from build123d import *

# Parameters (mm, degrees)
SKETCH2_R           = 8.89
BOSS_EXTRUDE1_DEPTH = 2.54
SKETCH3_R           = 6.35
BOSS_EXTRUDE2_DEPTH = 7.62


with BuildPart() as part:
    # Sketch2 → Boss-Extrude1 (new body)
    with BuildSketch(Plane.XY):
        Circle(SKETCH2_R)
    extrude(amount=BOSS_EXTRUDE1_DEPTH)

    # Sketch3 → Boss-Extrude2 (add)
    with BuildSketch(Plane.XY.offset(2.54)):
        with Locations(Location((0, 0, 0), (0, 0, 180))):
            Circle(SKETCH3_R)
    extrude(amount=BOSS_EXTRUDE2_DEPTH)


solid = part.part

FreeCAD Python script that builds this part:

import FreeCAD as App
import Part
import Sketcher
from FreeCAD import Vector
Q = App.Units.Quantity

doc = App.newDocument("Part")
body = doc.addObject("PartDesign::Body", "Body")

# Sketch on XY plane
sketch1 = body.newObject("Sketcher::SketchObject", "Sketch")
sketch1.AttachmentSupport = (doc.getObject("XY_Plane"), [""])
sketch1.MapMode = "FlatFace"
sketch1.addGeometry(Part.Circle(Vector(0, 0, 0), Vector(0, 0, 1), 8.89), False)
sketch1.addConstraint(Sketcher.Constraint("Coincident", 0, 3, -1, 1))
sketch1.addConstraint(Sketcher.Constraint("Diameter", 0, Q("0.7 in")))
pad1 = body.newObject("PartDesign::Pad", "Pad")
pad1.Profile = sketch1
pad1.Length = Q("0.1 in")

# Sketch on XY plane
sketch2 = body.newObject("Sketcher::SketchObject", "Sketch001")
sketch2.AttachmentSupport = (doc.getObject("XY_Plane"), [""])
sketch2.MapMode = "FlatFace"
sketch2.AttachmentOffset = App.Placement(Vector(0, 0, 0.1 * 25.4), App.Rotation())
sketch2.addGeometry(Part.Circle(Vector(0, 0, 0), Vector(0, 0, 1), 6.35), False)
sketch2.addConstraint(Sketcher.Constraint("Coincident", 0, 3, -1, 1))
sketch2.addConstraint(Sketcher.Constraint("Diameter", 0, Q("0.5 in")))
pad2 = body.newObject("PartDesign::Pad", "Pad001")
pad2.Profile = sketch2
pad2.Length = Q("0.3 in")

doc.recompute()
